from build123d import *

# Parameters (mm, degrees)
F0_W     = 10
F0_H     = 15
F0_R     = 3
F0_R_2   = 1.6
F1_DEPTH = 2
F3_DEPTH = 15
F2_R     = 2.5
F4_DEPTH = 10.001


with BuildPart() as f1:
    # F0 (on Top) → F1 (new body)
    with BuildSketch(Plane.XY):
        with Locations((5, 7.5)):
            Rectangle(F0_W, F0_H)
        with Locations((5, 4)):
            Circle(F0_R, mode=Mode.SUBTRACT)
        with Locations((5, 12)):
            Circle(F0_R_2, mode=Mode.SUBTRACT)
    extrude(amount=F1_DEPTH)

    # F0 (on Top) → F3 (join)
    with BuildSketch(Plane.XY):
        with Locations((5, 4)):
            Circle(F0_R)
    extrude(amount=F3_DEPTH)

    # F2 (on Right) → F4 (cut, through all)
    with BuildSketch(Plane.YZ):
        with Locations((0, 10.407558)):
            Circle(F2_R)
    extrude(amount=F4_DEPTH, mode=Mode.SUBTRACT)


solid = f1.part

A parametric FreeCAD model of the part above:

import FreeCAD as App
import Part
import Sketcher
from FreeCAD import Vector
Q = App.Units.Quantity


def add_polygon(sketch, points):
    """Adds a closed chain of lines whose ends are joined by coincident constraints."""
    first, n = sketch.GeometryCount, len(points)
    for a, b in zip(points, points[1:] + points[:1]):
        sketch.addGeometry(Part.LineSegment(App.Vector(*a, 0), App.Vector(*b, 0)), False)
    for i in range(n):
        sketch.addConstraint(Sketcher.Constraint("Coincident", first + i, 2, first + (i + 1) % n, 1))

doc = App.newDocument("Part")
params = doc.addObject("Spreadsheet::Sheet", "Params")
for row, (alias, value) in enumerate([
    ("sketch1_diameter", "6 mm"),
    ("sketch1_diameter2", "3.2 mm"),
    ("sketch1_width", "10 mm"),
    ("sketch1_height", "15 mm"),
    ("pad1_length", "2 mm"),
    ("sketch2_diameter", "6 mm"),
    ("pad2_length", "15 mm"),
    ("sketch3_diameter", "5 mm"),
], start=1):
    params.set(f"A{row}", alias)
    params.set(f"B{row}", "=" + value)
    params.setAlias(f"B{row}", alias)

body = doc.addObject("PartDesign::Body", "Body")

# Sketch on XY plane
sketch1 = body.newObject("Sketcher::SketchObject", "Sketch")
sketch1.AttachmentSupport = (doc.getObject("XY_Plane"), [""])
sketch1.MapMode = "FlatFace"
add_polygon(sketch1, [(0, 15), (0, 0), (10, 0), (10, 15)])  # lines 0-3
sketch1.addGeometry(Part.Circle(Vector(5, 4, 0), Vector(0, 0, 1), 3), False)  # 4
sketch1.addGeometry(Part.Circle(Vector(5, 12, 0), Vector(0, 0, 1), 1.6), False)  # 5
sketch1.addConstraint([
    Sketcher.Constraint("Vertical", 0),
    Sketcher.Constraint("Horizontal", 1),
    Sketcher.Constraint("Vertical", 2),
    Sketcher.Constraint("Horizontal", 3),
    Sketcher.Constraint("Coincident", 0, 2, -1, 1),
    Sketcher.Constraint("Vertical", 4, 3, 5, 3),
    Sketcher.Constraint("Diameter", 4, Q("6 mm")),
    Sketcher.Constraint("Diameter", 5, Q("3.2 mm")),
    Sketcher.Constraint("DistanceX", 1, 1, 1, 2, Q("10 mm")),
    Sketcher.Constraint("DistanceY", 0, 2, 0, 1, Q("15 mm")),
    Sketcher.Constraint("DistanceX", -1, 1, 4, 3, Q("5 mm")),
    Sketcher.Constraint("DistanceY", -1, 1, 4, 3, Q("4 mm")),
    Sketcher.Constraint("DistanceY", -1, 1, 5, 3, Q("12 mm")),
])
sketch1.setExpression("Constraints[10]", "Params.sketch1_diameter")
sketch1.setExpression("Constraints[11]", "Params.sketch1_diameter2")
sketch1.setExpression("Constraints[12]", "Params.sketch1_width")
sketch1.setExpression("Constraints[13]", "Params.sketch1_height")
pad1 = body.newObject("PartDesign::Pad", "Pad")
pad1.Profile = sketch1
pad1.setExpression("Length", "Params.pad1_length")

# Sketch on XY plane
sketch2 = body.newObject("Sketcher::SketchObject", "Sketch001")
sketch2.AttachmentSupport = (doc.getObject("XY_Plane"), [""])
sketch2.MapMode = "FlatFace"
sketch2.addGeometry(Part.Circle(Vector(5, 4, 0), Vector(0, 0, 1), 3), False)
sketch2.addConstraint([
    Sketcher.Constraint("Diameter", 0, Q("6 mm")),
    Sketcher.Constraint("DistanceX", -1, 1, 0, 3, Q("5 mm")),
    Sketcher.Constraint("DistanceY", -1, 1, 0, 3, Q("4 mm")),
])
sketch2.setExpression("Constraints[0]", "Params.sketch2_diameter")
pad2 = body.newObject("PartDesign::Pad", "Pad001")
pad2.Profile = sketch2
pad2.setExpression("Length", "Params.pad2_length")

# Sketch on YZ plane
sketch3 = body.newObject("Sketcher::SketchObject", "Sketch002")
sketch3.AttachmentSupport = (doc.getObject("YZ_Plane"), [""])
sketch3.MapMode = "FlatFace"
sketch3.addGeometry(Part.Circle(Vector(0, 10.4, 0), Vector(0, 0, 1), 2.5), False)
sketch3.addConstraint([
    Sketcher.Constraint("PointOnObject", 0, 3, -2),
    Sketcher.Constraint("Diameter", 0, Q("5 mm")),
    Sketcher.Constraint("DistanceY", -1, 1, 0, 3, Q("10.407558 mm")),
])
sketch3.setExpression("Constraints[1]", "Params.sketch3_diameter")
pocket1 = body.newObject("PartDesign::Pocket", "Pocket")
pocket1.Profile = sketch3
pocket1.Type = "ThroughAll"
pocket1.Reversed = True

doc.recompute()
